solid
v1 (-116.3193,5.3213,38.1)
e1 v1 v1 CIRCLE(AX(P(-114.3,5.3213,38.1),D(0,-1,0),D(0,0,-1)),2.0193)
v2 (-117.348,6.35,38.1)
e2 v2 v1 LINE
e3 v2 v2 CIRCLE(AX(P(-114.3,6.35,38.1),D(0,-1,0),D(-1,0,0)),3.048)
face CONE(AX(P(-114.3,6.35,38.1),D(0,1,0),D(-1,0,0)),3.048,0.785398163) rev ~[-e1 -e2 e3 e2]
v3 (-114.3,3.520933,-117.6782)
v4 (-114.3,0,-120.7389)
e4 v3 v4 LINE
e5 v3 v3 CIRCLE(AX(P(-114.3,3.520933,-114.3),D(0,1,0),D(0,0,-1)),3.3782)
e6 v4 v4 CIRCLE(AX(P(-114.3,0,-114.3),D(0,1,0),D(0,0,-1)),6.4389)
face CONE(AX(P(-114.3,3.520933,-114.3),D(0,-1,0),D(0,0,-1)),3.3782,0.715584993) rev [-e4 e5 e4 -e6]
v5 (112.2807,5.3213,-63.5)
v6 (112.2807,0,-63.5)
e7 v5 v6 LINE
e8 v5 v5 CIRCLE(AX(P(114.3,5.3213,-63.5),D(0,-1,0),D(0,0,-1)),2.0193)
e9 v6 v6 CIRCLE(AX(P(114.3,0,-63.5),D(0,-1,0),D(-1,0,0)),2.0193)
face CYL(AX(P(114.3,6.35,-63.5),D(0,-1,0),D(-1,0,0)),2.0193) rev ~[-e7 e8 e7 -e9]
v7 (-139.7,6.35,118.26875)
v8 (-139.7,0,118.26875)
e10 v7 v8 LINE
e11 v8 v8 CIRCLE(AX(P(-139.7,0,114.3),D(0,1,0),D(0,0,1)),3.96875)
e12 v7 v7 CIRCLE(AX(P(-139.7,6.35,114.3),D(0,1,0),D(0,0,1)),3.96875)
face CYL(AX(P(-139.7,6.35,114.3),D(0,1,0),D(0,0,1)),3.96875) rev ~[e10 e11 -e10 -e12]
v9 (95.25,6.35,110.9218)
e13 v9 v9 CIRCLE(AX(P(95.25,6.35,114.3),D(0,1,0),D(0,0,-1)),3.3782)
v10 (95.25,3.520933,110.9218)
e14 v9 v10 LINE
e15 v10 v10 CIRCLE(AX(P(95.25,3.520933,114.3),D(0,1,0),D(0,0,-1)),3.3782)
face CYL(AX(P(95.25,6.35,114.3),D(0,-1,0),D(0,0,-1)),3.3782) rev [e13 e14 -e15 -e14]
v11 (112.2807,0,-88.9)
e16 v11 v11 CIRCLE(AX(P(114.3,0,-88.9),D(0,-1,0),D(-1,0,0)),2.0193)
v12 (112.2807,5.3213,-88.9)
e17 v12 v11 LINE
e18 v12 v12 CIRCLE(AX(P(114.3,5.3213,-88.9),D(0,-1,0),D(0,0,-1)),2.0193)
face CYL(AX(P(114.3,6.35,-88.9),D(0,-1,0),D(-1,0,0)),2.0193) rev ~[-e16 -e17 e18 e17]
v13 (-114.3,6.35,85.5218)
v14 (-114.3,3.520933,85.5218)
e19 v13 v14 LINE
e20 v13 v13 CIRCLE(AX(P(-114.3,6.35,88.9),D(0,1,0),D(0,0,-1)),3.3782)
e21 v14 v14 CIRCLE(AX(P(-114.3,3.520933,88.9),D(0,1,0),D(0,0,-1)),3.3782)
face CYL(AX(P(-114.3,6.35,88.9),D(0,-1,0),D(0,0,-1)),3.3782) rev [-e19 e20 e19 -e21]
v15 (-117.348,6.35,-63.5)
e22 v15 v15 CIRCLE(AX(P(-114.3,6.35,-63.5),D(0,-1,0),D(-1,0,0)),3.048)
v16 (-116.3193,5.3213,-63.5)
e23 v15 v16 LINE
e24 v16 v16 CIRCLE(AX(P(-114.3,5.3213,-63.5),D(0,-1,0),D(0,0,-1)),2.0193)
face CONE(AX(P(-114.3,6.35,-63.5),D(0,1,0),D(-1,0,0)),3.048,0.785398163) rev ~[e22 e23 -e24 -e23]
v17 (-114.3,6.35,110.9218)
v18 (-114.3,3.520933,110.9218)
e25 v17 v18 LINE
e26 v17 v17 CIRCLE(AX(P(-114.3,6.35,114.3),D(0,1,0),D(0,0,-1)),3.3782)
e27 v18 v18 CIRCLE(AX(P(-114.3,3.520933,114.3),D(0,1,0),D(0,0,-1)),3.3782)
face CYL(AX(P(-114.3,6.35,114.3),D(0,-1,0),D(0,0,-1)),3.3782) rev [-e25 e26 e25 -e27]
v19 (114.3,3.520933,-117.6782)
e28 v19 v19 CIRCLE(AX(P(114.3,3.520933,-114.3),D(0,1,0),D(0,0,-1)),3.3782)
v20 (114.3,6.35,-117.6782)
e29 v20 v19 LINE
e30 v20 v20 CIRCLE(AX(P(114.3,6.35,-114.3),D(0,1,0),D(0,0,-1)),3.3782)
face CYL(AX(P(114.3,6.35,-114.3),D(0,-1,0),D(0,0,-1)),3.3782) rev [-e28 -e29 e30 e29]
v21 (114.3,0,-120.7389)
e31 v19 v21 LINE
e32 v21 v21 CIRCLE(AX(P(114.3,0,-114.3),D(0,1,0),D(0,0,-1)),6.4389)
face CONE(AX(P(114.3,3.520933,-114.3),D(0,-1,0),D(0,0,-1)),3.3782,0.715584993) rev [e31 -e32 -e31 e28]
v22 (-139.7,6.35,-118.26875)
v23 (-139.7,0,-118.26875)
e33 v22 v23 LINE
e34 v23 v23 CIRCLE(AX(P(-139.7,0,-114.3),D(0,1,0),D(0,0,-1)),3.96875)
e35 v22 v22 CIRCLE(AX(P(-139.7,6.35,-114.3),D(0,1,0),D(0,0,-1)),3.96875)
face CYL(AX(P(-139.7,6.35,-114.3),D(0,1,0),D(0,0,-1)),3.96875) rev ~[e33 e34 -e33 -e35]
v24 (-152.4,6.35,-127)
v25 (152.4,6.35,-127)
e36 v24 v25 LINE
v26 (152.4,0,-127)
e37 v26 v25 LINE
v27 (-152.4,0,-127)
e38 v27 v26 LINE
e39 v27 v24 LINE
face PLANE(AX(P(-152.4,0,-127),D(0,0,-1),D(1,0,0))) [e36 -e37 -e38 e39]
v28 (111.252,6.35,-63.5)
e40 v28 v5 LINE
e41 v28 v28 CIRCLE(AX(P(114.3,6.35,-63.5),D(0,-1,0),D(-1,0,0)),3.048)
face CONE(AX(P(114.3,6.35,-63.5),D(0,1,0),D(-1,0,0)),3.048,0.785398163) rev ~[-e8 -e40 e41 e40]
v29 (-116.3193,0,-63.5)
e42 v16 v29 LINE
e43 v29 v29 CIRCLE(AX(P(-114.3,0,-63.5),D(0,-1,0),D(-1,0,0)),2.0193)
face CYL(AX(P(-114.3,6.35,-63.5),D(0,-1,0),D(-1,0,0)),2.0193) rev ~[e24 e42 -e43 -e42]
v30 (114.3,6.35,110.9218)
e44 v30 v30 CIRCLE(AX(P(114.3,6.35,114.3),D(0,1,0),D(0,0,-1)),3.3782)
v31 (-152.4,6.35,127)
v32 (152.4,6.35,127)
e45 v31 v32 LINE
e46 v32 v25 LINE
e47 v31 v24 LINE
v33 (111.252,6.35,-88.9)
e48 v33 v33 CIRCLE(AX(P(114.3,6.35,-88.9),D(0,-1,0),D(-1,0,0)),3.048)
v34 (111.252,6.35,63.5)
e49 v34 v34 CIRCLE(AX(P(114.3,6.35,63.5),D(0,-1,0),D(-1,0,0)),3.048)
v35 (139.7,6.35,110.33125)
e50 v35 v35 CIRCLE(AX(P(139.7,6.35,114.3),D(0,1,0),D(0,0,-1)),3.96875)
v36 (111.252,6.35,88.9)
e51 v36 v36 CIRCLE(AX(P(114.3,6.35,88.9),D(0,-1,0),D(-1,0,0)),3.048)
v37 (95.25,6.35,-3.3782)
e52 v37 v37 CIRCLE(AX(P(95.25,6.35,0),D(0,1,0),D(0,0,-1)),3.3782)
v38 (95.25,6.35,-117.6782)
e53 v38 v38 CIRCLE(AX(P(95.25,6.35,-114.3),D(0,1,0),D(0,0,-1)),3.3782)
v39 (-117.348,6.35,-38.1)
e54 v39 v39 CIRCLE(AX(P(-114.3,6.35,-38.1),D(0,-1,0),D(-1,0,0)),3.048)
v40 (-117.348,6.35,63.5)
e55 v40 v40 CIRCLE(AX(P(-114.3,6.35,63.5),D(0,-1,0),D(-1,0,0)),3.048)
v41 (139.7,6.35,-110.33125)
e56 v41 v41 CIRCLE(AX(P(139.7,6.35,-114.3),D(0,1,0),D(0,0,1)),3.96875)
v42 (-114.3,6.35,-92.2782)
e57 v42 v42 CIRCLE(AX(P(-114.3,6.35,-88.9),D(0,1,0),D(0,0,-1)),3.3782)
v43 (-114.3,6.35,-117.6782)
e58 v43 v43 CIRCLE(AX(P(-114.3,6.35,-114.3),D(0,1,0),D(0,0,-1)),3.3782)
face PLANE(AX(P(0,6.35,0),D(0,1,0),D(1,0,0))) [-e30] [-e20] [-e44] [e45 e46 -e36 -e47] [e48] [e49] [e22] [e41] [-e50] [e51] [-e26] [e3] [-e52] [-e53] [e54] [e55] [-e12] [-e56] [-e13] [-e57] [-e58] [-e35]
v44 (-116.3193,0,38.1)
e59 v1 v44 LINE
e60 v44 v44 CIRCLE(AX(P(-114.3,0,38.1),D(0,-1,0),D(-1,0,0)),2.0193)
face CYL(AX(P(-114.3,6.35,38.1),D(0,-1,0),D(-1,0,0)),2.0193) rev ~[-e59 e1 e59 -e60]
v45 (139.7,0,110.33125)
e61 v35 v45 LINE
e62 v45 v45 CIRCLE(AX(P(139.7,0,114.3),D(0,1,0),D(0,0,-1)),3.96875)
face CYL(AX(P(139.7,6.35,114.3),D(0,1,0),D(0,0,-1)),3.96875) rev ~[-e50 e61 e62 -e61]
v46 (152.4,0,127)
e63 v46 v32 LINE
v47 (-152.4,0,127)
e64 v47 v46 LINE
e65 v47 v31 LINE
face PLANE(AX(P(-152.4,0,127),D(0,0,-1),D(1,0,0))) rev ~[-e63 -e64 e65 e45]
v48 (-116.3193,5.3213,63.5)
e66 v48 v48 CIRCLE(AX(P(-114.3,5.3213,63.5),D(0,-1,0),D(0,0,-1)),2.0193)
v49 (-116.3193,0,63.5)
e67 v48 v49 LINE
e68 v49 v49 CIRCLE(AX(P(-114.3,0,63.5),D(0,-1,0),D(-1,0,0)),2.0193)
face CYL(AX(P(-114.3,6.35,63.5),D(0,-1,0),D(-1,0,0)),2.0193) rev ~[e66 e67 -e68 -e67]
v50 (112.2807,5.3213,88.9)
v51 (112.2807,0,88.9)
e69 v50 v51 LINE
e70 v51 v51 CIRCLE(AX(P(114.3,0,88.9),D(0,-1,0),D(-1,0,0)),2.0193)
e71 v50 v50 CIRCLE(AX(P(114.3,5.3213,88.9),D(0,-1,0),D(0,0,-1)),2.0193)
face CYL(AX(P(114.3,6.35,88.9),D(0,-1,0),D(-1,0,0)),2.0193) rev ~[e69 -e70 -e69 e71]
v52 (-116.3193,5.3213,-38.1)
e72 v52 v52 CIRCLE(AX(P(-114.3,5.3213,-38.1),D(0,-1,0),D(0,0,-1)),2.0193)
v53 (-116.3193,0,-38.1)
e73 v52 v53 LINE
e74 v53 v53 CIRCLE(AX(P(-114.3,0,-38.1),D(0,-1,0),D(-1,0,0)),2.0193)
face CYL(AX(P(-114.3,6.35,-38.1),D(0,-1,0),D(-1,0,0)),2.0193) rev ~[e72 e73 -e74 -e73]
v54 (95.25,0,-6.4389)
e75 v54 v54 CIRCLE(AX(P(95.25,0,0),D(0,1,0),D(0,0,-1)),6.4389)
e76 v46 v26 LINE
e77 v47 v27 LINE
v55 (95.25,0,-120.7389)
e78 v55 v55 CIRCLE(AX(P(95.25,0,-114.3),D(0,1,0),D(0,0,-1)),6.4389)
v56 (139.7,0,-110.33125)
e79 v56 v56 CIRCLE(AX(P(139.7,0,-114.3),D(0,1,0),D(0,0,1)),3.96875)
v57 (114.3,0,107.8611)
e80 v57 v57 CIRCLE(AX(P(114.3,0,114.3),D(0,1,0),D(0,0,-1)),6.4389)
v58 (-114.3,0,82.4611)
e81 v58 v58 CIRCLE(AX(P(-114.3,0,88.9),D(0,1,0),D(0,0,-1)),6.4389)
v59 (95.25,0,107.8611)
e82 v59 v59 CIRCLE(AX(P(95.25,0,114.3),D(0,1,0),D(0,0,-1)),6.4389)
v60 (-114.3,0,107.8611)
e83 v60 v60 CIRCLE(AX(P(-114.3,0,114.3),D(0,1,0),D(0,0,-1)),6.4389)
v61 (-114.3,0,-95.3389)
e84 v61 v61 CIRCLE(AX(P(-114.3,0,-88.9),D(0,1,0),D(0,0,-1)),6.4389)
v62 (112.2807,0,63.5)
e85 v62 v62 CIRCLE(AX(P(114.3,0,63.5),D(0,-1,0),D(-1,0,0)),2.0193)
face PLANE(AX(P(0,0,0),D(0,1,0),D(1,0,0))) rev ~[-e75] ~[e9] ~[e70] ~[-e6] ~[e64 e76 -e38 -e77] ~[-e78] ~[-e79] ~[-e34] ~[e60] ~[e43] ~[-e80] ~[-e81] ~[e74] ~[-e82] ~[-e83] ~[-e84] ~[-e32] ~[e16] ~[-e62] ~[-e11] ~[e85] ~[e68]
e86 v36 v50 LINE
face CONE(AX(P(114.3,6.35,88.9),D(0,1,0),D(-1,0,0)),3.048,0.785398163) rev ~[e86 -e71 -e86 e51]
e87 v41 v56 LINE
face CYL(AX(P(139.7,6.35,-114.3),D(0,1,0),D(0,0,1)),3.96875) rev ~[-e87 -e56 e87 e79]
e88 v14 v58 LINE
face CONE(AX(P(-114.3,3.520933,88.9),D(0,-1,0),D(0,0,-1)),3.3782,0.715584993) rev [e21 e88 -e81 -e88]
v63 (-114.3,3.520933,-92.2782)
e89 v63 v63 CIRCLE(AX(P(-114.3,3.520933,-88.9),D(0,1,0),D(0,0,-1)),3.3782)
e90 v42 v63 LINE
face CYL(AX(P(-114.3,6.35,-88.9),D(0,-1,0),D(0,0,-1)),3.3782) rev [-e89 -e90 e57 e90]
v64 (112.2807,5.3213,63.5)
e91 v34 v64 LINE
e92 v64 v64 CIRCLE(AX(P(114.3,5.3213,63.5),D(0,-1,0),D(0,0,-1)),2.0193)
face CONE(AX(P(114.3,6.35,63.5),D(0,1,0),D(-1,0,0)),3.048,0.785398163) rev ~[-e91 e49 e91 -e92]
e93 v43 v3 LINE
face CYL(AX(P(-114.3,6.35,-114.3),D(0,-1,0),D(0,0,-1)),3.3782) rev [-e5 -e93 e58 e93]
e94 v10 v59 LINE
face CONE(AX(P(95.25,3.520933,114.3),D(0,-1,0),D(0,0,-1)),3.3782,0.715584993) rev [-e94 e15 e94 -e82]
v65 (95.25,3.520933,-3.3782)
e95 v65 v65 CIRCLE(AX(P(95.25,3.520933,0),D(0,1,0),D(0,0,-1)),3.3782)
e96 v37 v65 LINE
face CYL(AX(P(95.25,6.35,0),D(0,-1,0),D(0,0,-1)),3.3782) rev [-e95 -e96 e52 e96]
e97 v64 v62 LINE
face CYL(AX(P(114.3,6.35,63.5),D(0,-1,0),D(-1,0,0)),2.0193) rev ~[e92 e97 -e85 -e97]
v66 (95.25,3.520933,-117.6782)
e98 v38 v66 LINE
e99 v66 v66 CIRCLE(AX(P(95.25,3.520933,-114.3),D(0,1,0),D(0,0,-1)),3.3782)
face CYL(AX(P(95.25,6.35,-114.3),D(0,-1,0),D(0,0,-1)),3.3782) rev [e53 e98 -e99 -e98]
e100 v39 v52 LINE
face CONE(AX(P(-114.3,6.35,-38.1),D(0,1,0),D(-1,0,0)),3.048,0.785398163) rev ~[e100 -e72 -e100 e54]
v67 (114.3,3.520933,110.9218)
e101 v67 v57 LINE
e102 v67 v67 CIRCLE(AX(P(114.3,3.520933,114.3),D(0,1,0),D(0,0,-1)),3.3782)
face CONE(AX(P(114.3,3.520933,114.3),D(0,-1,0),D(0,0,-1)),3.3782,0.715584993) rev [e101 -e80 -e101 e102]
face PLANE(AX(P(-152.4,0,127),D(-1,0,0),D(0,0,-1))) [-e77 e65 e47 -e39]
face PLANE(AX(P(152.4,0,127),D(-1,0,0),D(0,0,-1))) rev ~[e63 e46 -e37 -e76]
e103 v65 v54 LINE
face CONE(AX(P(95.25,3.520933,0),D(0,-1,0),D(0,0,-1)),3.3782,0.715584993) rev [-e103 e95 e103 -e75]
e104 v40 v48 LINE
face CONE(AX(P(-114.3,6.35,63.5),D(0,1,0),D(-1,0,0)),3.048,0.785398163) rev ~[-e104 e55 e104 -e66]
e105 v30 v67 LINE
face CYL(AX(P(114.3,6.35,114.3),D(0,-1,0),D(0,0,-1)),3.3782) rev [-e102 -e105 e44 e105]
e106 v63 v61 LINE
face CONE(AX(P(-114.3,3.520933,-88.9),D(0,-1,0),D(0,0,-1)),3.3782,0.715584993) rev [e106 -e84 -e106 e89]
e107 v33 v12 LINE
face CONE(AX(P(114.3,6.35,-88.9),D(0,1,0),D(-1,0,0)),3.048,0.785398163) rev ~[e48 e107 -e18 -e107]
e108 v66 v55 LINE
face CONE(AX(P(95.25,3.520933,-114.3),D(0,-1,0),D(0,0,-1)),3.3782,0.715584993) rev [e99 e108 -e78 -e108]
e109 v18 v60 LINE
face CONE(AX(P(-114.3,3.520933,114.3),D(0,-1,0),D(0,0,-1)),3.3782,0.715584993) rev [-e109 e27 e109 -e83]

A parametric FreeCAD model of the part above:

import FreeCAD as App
import Part
import Sketcher
Q = App.Units.Quantity


def add_polygon(sketch, points):
    """Adds a closed chain of lines whose ends are joined by coincident constraints."""
    first, n = sketch.GeometryCount, len(points)
    for a, b in zip(points, points[1:] + points[:1]):
        sketch.addGeometry(Part.LineSegment(App.Vector(*a, 0), App.Vector(*b, 0)), False)
    for i in range(n):
        sketch.addConstraint(Sketcher.Constraint("Coincident", first + i, 2, first + (i + 1) % n, 1))

doc = App.newDocument("Part")
body = doc.addObject("PartDesign::Body", "Body")

sketch1 = body.newObject("Sketcher::SketchObject", "Sketch")
sketch1.AttachmentSupport = (doc.getObject("XZ_Plane"), [""])
sketch1.MapMode = "FlatFace"
add_polygon(sketch1, [(-152, -127), (-152, 127), (152, 127), (152, -127)])
sketch1.addConstraint([
    Sketcher.Constraint("Vertical", 0),
    Sketcher.Constraint("Horizontal", 1),
    Sketcher.Constraint("Vertical", 2),
    Sketcher.Constraint("Horizontal", 3),
    Sketcher.Constraint("Symmetric", 0, 2, 2, 2, -1, 1),
    Sketcher.Constraint("DistanceX", 1, 1, 1, 2, Q("12 in")),
    Sketcher.Constraint("DistanceY", 0, 1, 0, 2, Q("10 in")),
])
pad1 = body.newObject("PartDesign::Pad", "Pad")
pad1.Profile = sketch1
pad1.Length = Q("0.25 in")
pad1.Reversed = True

sketch2 = body.newObject("Sketcher::SketchObject", "Sketch001")
sketch2.AttachmentSupport = (doc.getObject("XZ_Plane"), [""])
sketch2.MapMode = "FlatFace"
sketch2.AttachmentOffset = App.Placement(App.Vector(0, 0, -0.25 * 25.4), App.Rotation())
sketch2.addGeometry([
    Part.Circle(App.Vector(139.7, -114.3, 0), App.Vector(0, 0, 1), 4),
    Part.Circle(App.Vector(139.7, 114.3, 0), App.Vector(0, 0, 1), 4),
    Part.Circle(App.Vector(-139.7, -114.3, 0), App.Vector(0, 0, 1), 4),
    Part.Circle(App.Vector(-139.7, 114.3, 0), App.Vector(0, 0, 1), 4),
], False)
sketch2.addConstraint([
    Sketcher.Constraint("Equal", 0, 1),
    Sketcher.Constraint("Equal", 1, 2),
    Sketcher.Constraint("Equal", 2, 3),
    Sketcher.Constraint("Symmetric", 1, 3, 2, 3, -1, 1),
    Sketcher.Constraint("Symmetric", 0, 3, 3, 3, -1, 1),
    Sketcher.Constraint("Symmetric", 0, 3, 2, 3, -2),
    Sketcher.Constraint("Diameter", 0, Q("0.3125 in")),
    Sketcher.Constraint("DistanceY", 0, 3, 1, 3, Q("9 in")),
    Sketcher.Constraint("DistanceX", 2, 3, 0, 3, Q("11 in")),
])
pocket1 = body.newObject("PartDesign::Pocket", "Pocket")
pocket1.Profile = sketch2
pocket1.Type = "ThroughAll"
pocket1.Reversed = True

sketch3 = body.newObject("Sketcher::SketchObject", "Sketch002")
sketch3.AttachmentSupport = (doc.getObject("YZ_Plane"), [""])
sketch3.MapMode = "FlatFace"
sketch3.AttachmentOffset = App.Placement(App.Vector(0, 0, -4.5 * 25.4), App.Rotation())
add_polygon(sketch3, [(6.3, -114.3), (0, -114.3), (0, -120.7), (3.5, -117.7), (6.3, -117.7)])
sketch3.addGeometry(Part.LineSegment(App.Vector(0, -114.3, 0), App.Vector(6.3, -114.3, 0)), True)
sketch3.addConstraint([
    Sketcher.Constraint("Horizontal", 0),
    Sketcher.Constraint("Vertical", 1),
    Sketcher.Constraint("Horizontal", 3),
    Sketcher.Constraint("Vertical", 4),
    Sketcher.Constraint("Horizontal", 5),
    Sketcher.Constraint("Coincident", 5, 1, 0, 2),
    Sketcher.Constraint("PointOnObject", 0, 2, -2),
    Sketcher.Constraint("Vertical", 3, 2, 5, 2),
    Sketcher.Constraint("Angle", 2, Q("41 deg")),
    Sketcher.Constraint("DistanceX", 0, 2, 0, 1, Q("0.25 in")),
    Sketcher.Constraint("DistanceY", 0, 2, -1, 1, Q("4.5 in")),
    Sketcher.Constraint("DistanceY", 4, 1, 4, 2, Q("0.133 in")),
    Sketcher.Constraint("DistanceY", 1, 2, 1, 1, Q("0.2535 in")),
])
groove = body.newObject("PartDesign::Groove", "Groove")
groove.Profile = sketch3
groove.ReferenceAxis = (sketch3, ["Axis0"])
groove.Angle = 360
doc.recompute()

linearpattern = body.newObject("PartDesign::LinearPattern", "LinearPattern")
linearpattern.Originals = [groove]
linearpattern.Direction = (doc.getObject("Z_Axis"), [""])
linearpattern.Mode = "offset"
linearpattern.Offset = Q("9 in")
linearpattern.Occurrences = 2
body.Tip = linearpattern
doc.recompute()

datumline = body.newObject("PartDesign::Line", "DatumLine")
datumline.Placement = App.Placement(App.Vector(0, 0, 0), App.Rotation(App.Vector(0, 0, 1), App.Vector(0.707106781, 0, 0.707106781)))
linearpattern2 = body.newObject("PartDesign::LinearPattern", "LinearPattern001")
linearpattern2.Originals = [groove]
linearpattern2.Direction = (datumline, [""])
linearpattern2.Mode = "offset"
linearpattern2.Offset = 323.28922
linearpattern2.Occurrences = 2
body.Tip = linearpattern2
doc.recompute()

linearpattern3 = body.newObject("PartDesign::LinearPattern", "LinearPattern002")
linearpattern3.Originals = [groove]
linearpattern3.Direction = (doc.getObject("X_Axis"), [""])
linearpattern3.Mode = "offset"
linearpattern3.Offset = Q("9 in")
linearpattern3.Occurrences = 2
body.Tip = linearpattern3
doc.recompute()

linearpattern4 = body.newObject("PartDesign::LinearPattern", "LinearPattern003")
linearpattern4.Originals = [groove]
linearpattern4.Direction = (doc.getObject("X_Axis"), [""])
linearpattern4.Mode = "offset"
linearpattern4.Offset = Q("8.25 in")
linearpattern4.Occurrences = 2
body.Tip = linearpattern4
doc.recompute()

datumline2 = body.newObject("PartDesign::Line", "DatumLine001")
datumline2.Placement = App.Placement(App.Vector(0, 0, 0), App.Rotation(App.Vector(0, 0, 1), App.Vector(0.877895573, 0, 0.478852131)))
linearpattern5 = body.newObject("PartDesign::LinearPattern", "LinearPattern004")
linearpattern5.Originals = [groove]
linearpattern5.Direction = (datumline2, [""])
linearpattern5.Mode = "offset"
linearpattern5.Offset = 238.695816
linearpattern5.Occurrences = 2
body.Tip = linearpattern5
doc.recompute()

datumline3 = body.newObject("PartDesign::Line", "DatumLine002")
datumline3.Placement = App.Placement(App.Vector(0, 0, 0), App.Rotation(App.Vector(0, 0, 1), App.Vector(0.675724629, 0, 0.73715414)))
linearpattern6 = body.newObject("PartDesign::LinearPattern", "LinearPattern005")
linearpattern6.Originals = [groove]
linearpattern6.Direction = (datumline3, [""])
linearpattern6.Mode = "offset"
linearpattern6.Offset = 310.111532
linearpattern6.Occurrences = 2
body.Tip = linearpattern6
doc.recompute()

linearpattern7 = body.newObject("PartDesign::LinearPattern", "LinearPattern006")
linearpattern7.Originals = [groove]
linearpattern7.Direction = (doc.getObject("Z_Axis"), [""])
linearpattern7.Mode = "offset"
linearpattern7.Offset = Q("1 in")
linearpattern7.Occurrences = 2
body.Tip = linearpattern7
doc.recompute()

linearpattern8 = body.newObject("PartDesign::LinearPattern", "LinearPattern007")
linearpattern8.Originals = [groove]
linearpattern8.Direction = (doc.getObject("Z_Axis"), [""])
linearpattern8.Mode = "offset"
linearpattern8.Offset = Q("8 in")
linearpattern8.Occurrences = 2
body.Tip = linearpattern8

sketch4 = body.newObject("Sketcher::SketchObject", "Sketch003")
sketch4.AttachmentSupport = (doc.getObject("XZ_Plane"), [""])
sketch4.MapMode = "FlatFace"
sketch4.AttachmentOffset = App.Placement(App.Vector(0, 0, -0.25 * 25.4), App.Rotation())
sketch4.addGeometry([
    Part.Circle(App.Vector(114.3, 88.9, 0), App.Vector(0, 0, 1), 2),
    Part.Circle(App.Vector(114.3, 63.5, 0), App.Vector(0, 0, 1), 2),
    Part.Circle(App.Vector(114.3, -63.5, 0), App.Vector(0, 0, 1), 2),
    Part.Circle(App.Vector(114.3, -88.9, 0), App.Vector(0, 0, 1), 2),
    Part.Circle(App.Vector(-114.3, -63.5, 0), App.Vector(0, 0, 1), 2),
    Part.Circle(App.Vector(-114.3, -38.1, 0), App.Vector(0, 0, 1), 2),
    Part.Circle(App.Vector(-114.3, 63.5, 0), App.Vector(0, 0, 1), 2),
    Part.Circle(App.Vector(-114.3, 38.1, 0), App.Vector(0, 0, 1), 2),
], False)
sketch4.addConstraint([
    Sketcher.Constraint("Equal", 0, 1),
    Sketcher.Constraint("Equal", 1, 2),
    Sketcher.Constraint("Equal", 2, 3),
    Sketcher.Constraint("Equal", 3, 4),
    Sketcher.Constraint("Equal", 4, 5),
    Sketcher.Constraint("Equal", 5, 6),
    Sketcher.Constraint("Equal", 6, 7),
    Sketcher.Constraint("Symmetric", 1, 3, 4, 3, -1, 1),
    Sketcher.Constraint("Symmetric", 2, 3, 6, 3, -1, 1),
    Sketcher.Constraint("Symmetric", 2, 3, 4, 3, -2),
    Sketcher.Constraint("Symmetric", 0, 3, 3, 3, -1),
    Sketcher.Constraint("Symmetric", 5, 3, 7, 3, -1),
    Sketcher.Constraint("Vertical", 0, 3, 1, 3),
    Sketcher.Constraint("Vertical", 4, 3, 5, 3),
    Sketcher.Constraint("Diameter", 0, Q("0.159 in")),
    Sketcher.Constraint("DistanceY", 1, 3, 0, 3, Q("1 in")),
    Sketcher.Constraint("DistanceY", 2, 3, 1, 3, Q("5 in")),
    Sketcher.Constraint("DistanceX", 4, 3, 2, 3, Q("9 in")),
    Sketcher.Constraint("DistanceY", 4, 3, 5, 3, Q("1 in")),
])
doc.recompute()
hole = body.newObject("PartDesign::Hole", "Hole")
hole.Profile = sketch4
hole.ThreadType = "None"
hole.Diameter = Q("0.159 in")
hole.DepthType = "ThroughAll"
hole.HoleCutType = "Countersink"
hole.HoleCutDiameter = Q("0.24 in")
hole.HoleCutCountersinkAngle = 90
hole.Reversed = True

doc.recompute()
